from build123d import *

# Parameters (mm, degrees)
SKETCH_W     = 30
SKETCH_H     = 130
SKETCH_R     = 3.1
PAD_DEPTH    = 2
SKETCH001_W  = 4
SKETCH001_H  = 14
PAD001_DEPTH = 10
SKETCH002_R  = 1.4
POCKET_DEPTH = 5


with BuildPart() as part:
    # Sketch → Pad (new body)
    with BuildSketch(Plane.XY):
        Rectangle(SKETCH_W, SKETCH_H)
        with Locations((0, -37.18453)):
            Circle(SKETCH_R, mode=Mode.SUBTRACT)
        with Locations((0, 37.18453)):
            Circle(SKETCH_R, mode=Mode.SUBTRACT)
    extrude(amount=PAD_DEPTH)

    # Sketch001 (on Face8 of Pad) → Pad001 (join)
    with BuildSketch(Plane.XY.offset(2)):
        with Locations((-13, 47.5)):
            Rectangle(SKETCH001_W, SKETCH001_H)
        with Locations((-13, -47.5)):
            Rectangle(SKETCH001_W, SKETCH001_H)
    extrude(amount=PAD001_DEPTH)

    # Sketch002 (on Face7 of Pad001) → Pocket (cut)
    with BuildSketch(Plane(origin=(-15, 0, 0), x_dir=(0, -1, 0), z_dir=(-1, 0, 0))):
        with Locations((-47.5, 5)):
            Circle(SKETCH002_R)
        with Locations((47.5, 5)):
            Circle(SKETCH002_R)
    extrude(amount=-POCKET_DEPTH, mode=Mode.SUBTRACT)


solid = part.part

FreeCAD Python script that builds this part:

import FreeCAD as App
import Part
import Sketcher
from FreeCAD import Vector


def add_polygon(sketch, points):
    """Adds a closed chain of lines whose ends are joined by coincident constraints."""
    first, n = sketch.GeometryCount, len(points)
    for a, b in zip(points, points[1:] + points[:1]):
        sketch.addGeometry(Part.LineSegment(App.Vector(*a, 0), App.Vector(*b, 0)), False)
    for i in range(n):
        sketch.addConstraint(Sketcher.Constraint("Coincident", first + i, 2, first + (i + 1) % n, 1))

doc = App.newDocument("Part")
params = doc.addObject("Spreadsheet::Sheet", "Params")
for row, (alias, value) in enumerate([
    ("sketch1_diameter", "6.2 mm"),
    ("sketch1_width", "30 mm"),
    ("sketch1_height", "130 mm"),
    ("pad1_length", "2 mm"),
    ("sketch2_width", "4 mm"),
    ("sketch2_height", "14 mm"),
    ("pad2_length", "10 mm"),
    ("sketch3_diameter", "2.8 mm"),
    ("pocket1_length", "5 mm"),
], start=1):
    params.set(f"A{row}", alias)
    params.set(f"B{row}", "=" + value)
    params.setAlias(f"B{row}", alias)

body = doc.addObject("PartDesign::Body", "Body")

sketch1 = doc.addObject("Sketcher::SketchObject", "Sketch")
body.addObject(sketch1)
sketch1.AttachmentSupport = (doc.XY_Plane, [""])
sketch1.MapMode = "FlatFace"
add_polygon(sketch1, [(-15, 65), (-15, -65), (15, -65), (15, 65)])
sketch1.addGeometry(Part.Circle(Vector(0, -37.2, 0), Vector(0, 0, 1), 3.1), False)
sketch1.addGeometry(Part.Circle(Vector(0, 37.2, 0), Vector(0, 0, 1), 3.1), False)
sketch1.addConstraint(Sketcher.Constraint("Vertical", 0))
sketch1.addConstraint(Sketcher.Constraint("Horizontal", 1))
sketch1.addConstraint(Sketcher.Constraint("Vertical", 2))
sketch1.addConstraint(Sketcher.Constraint("Horizontal", 3))
sketch1.addConstraint(Sketcher.Constraint("Equal", 4, 5))
sketch1.addConstraint(Sketcher.Constraint("Symmetric", 4, 3, 5, 3, -1, 1))
sketch1.addConstraint(Sketcher.Constraint("Symmetric", 0, 2, 2, 2, -1, 1))
sketch1.addConstraint(Sketcher.Constraint("PointOnObject", 4, 3, -2))
sketch1.addConstraint(Sketcher.Constraint("Diameter", 4, 6.2))
sketch1.addConstraint(Sketcher.Constraint("DistanceX", 1, 1, 1, 2, 30.0))
sketch1.addConstraint(Sketcher.Constraint("DistanceY", 0, 2, 0, 1, 130.0))
sketch1.addConstraint(Sketcher.Constraint("DistanceY", 4, 3, -1, 1, 37.18453))
sketch1.setExpression("Constraints[12]", "Params.sketch1_diameter")
sketch1.setExpression("Constraints[13]", "Params.sketch1_width")
sketch1.setExpression("Constraints[14]", "Params.sketch1_height")
pad1 = doc.addObject("PartDesign::Pad", "Pad")
body.addObject(pad1)
pad1.Profile = sketch1
pad1.setExpression("Length", "Params.pad1_length")

sketch2 = doc.addObject("Sketcher::SketchObject", "Sketch001")
body.addObject(sketch2)
sketch2.AttachmentSupport = (doc.XY_Plane, [""])
sketch2.MapMode = "FlatFace"
sketch2.AttachmentOffset = App.Placement(Vector(0, 0, 2), App.Rotation())
add_polygon(sketch2, [(-15, 54.5), (-15, 40.5), (-11, 40.5), (-11, 54.5)])
add_polygon(sketch2, [(-15, -40.5), (-15, -54.5), (-11, -54.5), (-11, -40.5)])
sketch2.addConstraint(Sketcher.Constraint("Vertical", 0))
sketch2.addConstraint(Sketcher.Constraint("Horizontal", 1))
sketch2.addConstraint(Sketcher.Constraint("Vertical", 2))
sketch2.addConstraint(Sketcher.Constraint("Horizontal", 3))
sketch2.addConstraint(Sketcher.Constraint("Vertical", 4))
sketch2.addConstraint(Sketcher.Constraint("Horizontal", 5))
sketch2.addConstraint(Sketcher.Constraint("Vertical", 6))
sketch2.addConstraint(Sketcher.Constraint("Horizontal", 7))
sketch2.addConstraint(Sketcher.Constraint("Symmetric", 3, 2, 4, 2, -1))
sketch2.addConstraint(Sketcher.Constraint("Symmetric", 1, 2, 6, 2, -1))
sketch2.addConstraint(Sketcher.Constraint("DistanceX", 1, 1, 1, 2, 4.0))
sketch2.addConstraint(Sketcher.Constraint("DistanceY", 0, 2, 0, 1, 14.0))
sketch2.addConstraint(Sketcher.Constraint("DistanceX", 0, 2, -1, 1, 15.0))
sketch2.addConstraint(Sketcher.Constraint("DistanceY", 4, 2, 0, 2, 95.0))
sketch2.setExpression("Constraints[18]", "Params.sketch2_width")
sketch2.setExpression("Constraints[19]", "Params.sketch2_height")
pad2 = doc.addObject("PartDesign::Pad", "Pad001")
body.addObject(pad2)
pad2.Profile = sketch2
pad2.setExpression("Length", "Params.pad2_length")

sketch3 = doc.addObject("Sketcher::SketchObject", "Sketch002")
body.addObject(sketch3)
sketch3.AttachmentSupport = (doc.YZ_Plane, [""])
sketch3.MapMode = "FlatFace"
sketch3.AttachmentOffset = App.Placement(Vector(0, 0, -15), App.Rotation())
sketch3.addGeometry(Part.Circle(Vector(47.5, 5, 0), Vector(0, 0, 1), 1.4), False)
sketch3.addGeometry(Part.Circle(Vector(-47.5, 5, 0), Vector(0, 0, 1), 1.4), False)
sketch3.addConstraint(Sketcher.Constraint("Equal", 0, 1))
sketch3.addConstraint(Sketcher.Constraint("Symmetric", 0, 3, 1, 3, -2))
sketch3.addConstraint(Sketcher.Constraint("Diameter", 0, 2.8))
sketch3.addConstraint(Sketcher.Constraint("DistanceY", -1, 1, 0, 3, 5.0))
sketch3.addConstraint(Sketcher.Constraint("DistanceX", 1, 3, 0, 3, 95.0))
sketch3.setExpression("Constraints[2]", "Params.sketch3_diameter")
pocket1 = doc.addObject("PartDesign::Pocket", "Pocket")
body.addObject(pocket1)
pocket1.Profile = sketch3
pocket1.setExpression("Length", "Params.pocket1_length")
pocket1.Reversed = True

doc.recompute()
